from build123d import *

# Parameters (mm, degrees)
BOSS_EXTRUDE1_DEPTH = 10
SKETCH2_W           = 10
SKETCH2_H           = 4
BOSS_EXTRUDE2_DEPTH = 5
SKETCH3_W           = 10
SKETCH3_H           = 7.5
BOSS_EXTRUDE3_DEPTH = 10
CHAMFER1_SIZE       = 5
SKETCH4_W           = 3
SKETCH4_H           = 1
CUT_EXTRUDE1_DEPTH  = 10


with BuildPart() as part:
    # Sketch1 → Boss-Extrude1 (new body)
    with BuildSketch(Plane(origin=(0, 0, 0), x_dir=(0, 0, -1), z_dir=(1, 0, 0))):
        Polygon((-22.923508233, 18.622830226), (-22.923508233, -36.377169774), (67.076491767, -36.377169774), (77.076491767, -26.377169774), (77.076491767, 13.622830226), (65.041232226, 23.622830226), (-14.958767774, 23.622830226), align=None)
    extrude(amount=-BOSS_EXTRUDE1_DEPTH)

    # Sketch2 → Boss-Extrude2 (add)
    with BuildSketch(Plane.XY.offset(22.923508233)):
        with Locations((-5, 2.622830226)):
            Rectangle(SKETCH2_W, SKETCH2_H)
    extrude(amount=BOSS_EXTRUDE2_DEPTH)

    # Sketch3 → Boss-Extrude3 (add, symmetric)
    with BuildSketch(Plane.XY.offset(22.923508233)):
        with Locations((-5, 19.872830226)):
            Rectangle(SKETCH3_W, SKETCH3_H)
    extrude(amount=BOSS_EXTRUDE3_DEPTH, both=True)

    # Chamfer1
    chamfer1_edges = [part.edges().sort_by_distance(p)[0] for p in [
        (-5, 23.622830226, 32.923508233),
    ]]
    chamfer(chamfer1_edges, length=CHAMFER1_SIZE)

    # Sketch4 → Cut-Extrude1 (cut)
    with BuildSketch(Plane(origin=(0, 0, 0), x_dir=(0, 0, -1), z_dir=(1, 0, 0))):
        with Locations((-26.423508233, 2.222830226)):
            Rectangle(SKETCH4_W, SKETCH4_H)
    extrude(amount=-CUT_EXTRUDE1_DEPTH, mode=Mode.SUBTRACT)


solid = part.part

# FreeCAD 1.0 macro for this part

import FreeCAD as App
import Part
import Sketcher
Q = App.Units.Quantity


def edges_at(feature, points):
    """Names of the edges that pass closest to the given points."""
    edges = feature.Shape.Edges
    near = lambda p: min(range(len(edges)), key=lambda i: edges[i].distToShape(Part.Vertex(*p))[0])
    return sorted({f"Edge{near(p) + 1}" for p in points})

doc = App.newDocument("Part")
body = doc.addObject("PartDesign::Body", "Body")

# Sketch on YZ plane
sketch1 = body.newObject("Sketcher::SketchObject", "Sketch")
sketch1.AttachmentSupport = (doc.getObject("YZ_Plane"), [""])
sketch1.MapMode = "FlatFace"
sketch1.addGeometry(Part.LineSegment(App.Vector(19, 23, 0), App.Vector(-36, 23, 0)), False)
sketch1.addGeometry(Part.LineSegment(App.Vector(-36, 23, 0), App.Vector(-36, -67, 0)), False)
sketch1.addGeometry(Part.LineSegment(App.Vector(-36, -67, 0), App.Vector(-26, -77, 0)), False)
sketch1.addGeometry(Part.LineSegment(App.Vector(-26, -77, 0), App.Vector(14, -77, 0)), False)
sketch1.addGeometry(Part.LineSegment(App.Vector(14, -77, 0), App.Vector(24, -65, 0)), False)
sketch1.addGeometry(Part.LineSegment(App.Vector(24, -65, 0), App.Vector(24, 15, 0)), False)
sketch1.addGeometry(Part.LineSegment(App.Vector(24, 15, 0), App.Vector(19, 23, 0)), False)
sketch1.addConstraint(Sketcher.Constraint("Coincident", 0, 2, 1, 1))
sketch1.addConstraint(Sketcher.Constraint("Coincident", 1, 2, 2, 1))
sketch1.addConstraint(Sketcher.Constraint("Coincident", 2, 2, 3, 1))
sketch1.addConstraint(Sketcher.Constraint("Coincident", 3, 2, 4, 1))
sketch1.addConstraint(Sketcher.Constraint("Coincident", 4, 2, 5, 1))
sketch1.addConstraint(Sketcher.Constraint("Coincident", 5, 2, 6, 1))
sketch1.addConstraint(Sketcher.Constraint("Coincident", 6, 2, 0, 1))
sketch1.addConstraint(Sketcher.Constraint("Horizontal", 0))
sketch1.addConstraint(Sketcher.Constraint("Vertical", 1))
sketch1.addConstraint(Sketcher.Constraint("Horizontal", 3))
sketch1.addConstraint(Sketcher.Constraint("Vertical", 5))
sketch1.addConstraint(Sketcher.Constraint("DistanceX", 0, 2, 0, 1, Q("55 mm")))
sketch1.addConstraint(Sketcher.Constraint("DistanceX", 3, 1, 3, 2, Q("40 mm")))
sketch1.addConstraint(Sketcher.Constraint("DistanceY", 1, 2, 1, 1, Q("90 mm")))
sketch1.addConstraint(Sketcher.Constraint("DistanceY", 5, 1, 5, 2, Q("80 mm")))
sketch1.addConstraint(Sketcher.Constraint("Angle", 2, Q("-45 deg")))
sketch1.addConstraint(Sketcher.Constraint("DistanceX", 1, 2, 2, 2, Q("10 mm")))
sketch1.addConstraint(Sketcher.Constraint("DistanceX", 3, 2, 4, 2, Q("10 mm")))
sketch1.addConstraint(Sketcher.Constraint("Distance", 6, Q("9.4041 mm")))
sketch1.addConstraint(Sketcher.Constraint("DistanceX", 0, 2, -1, 1, Q("36.37717 mm")))
sketch1.addConstraint(Sketcher.Constraint("DistanceY", -1, 1, 0, 2, Q("22.923508 mm")))
pad1 = body.newObject("PartDesign::Pad", "Pad")
pad1.Profile = sketch1
pad1.Length = 10
pad1.Reversed = True

# Sketch on XY plane
sketch2 = body.newObject("Sketcher::SketchObject", "Sketch001")
sketch2.AttachmentSupport = (doc.getObject("XY_Plane"), [""])
sketch2.MapMode = "FlatFace"
sketch2.AttachmentOffset = App.Placement(App.Vector(0, 0, 22.923508), App.Rotation())
sketch2.addGeometry(Part.LineSegment(App.Vector(-10, 4.6, 0), App.Vector(-10, 0.6, 0)), False)
sketch2.addGeometry(Part.LineSegment(App.Vector(-10, 0.6, 0), App.Vector(0, 0.6, 0)), False)
sketch2.addGeometry(Part.LineSegment(App.Vector(0, 0.6, 0), App.Vector(0, 4.6, 0)), False)
sketch2.addGeometry(Part.LineSegment(App.Vector(0, 4.6, 0), App.Vector(-10, 4.6, 0)), False)
sketch2.addConstraint(Sketcher.Constraint("Coincident", 0, 2, 1, 1))
sketch2.addConstraint(Sketcher.Constraint("Coincident", 1, 2, 2, 1))
sketch2.addConstraint(Sketcher.Constraint("Coincident", 2, 2, 3, 1))
sketch2.addConstraint(Sketcher.Constraint("Coincident", 3, 2, 0, 1))
sketch2.addConstraint(Sketcher.Constraint("Vertical", 0))
sketch2.addConstraint(Sketcher.Constraint("Horizontal", 1))
sketch2.addConstraint(Sketcher.Constraint("Vertical", 2))
sketch2.addConstraint(Sketcher.Constraint("Horizontal", 3))
sketch2.addConstraint(Sketcher.Constraint("PointOnObject", 1, 2, -2))
sketch2.addConstraint(Sketcher.Constraint("DistanceX", 1, 1, 1, 2, Q("10 mm")))
sketch2.addConstraint(Sketcher.Constraint("DistanceY", 0, 2, 0, 1, Q("4 mm")))
sketch2.addConstraint(Sketcher.Constraint("DistanceY", -1, 1, 0, 2, Q("0.62283 mm")))
pad2 = body.newObject("PartDesign::Pad", "Pad001")
pad2.Profile = sketch2
pad2.Length = 5

# Sketch on XY plane
sketch3 = body.newObject("Sketcher::SketchObject", "Sketch002")
sketch3.AttachmentSupport = (doc.getObject("XY_Plane"), [""])
sketch3.MapMode = "FlatFace"
sketch3.AttachmentOffset = App.Placement(App.Vector(0, 0, 22.923508), App.Rotation())
sketch3.addGeometry(Part.LineSegment(App.Vector(-10, 24, 0), App.Vector(-10, 16, 0)), False)
sketch3.addGeometry(Part.LineSegment(App.Vector(-10, 16, 0), App.Vector(0, 16, 0)), False)
sketch3.addGeometry(Part.LineSegment(App.Vector(0, 16, 0), App.Vector(0, 24, 0)), False)
sketch3.addGeometry(Part.LineSegment(App.Vector(0, 24, 0), App.Vector(-10, 24, 0)), False)
sketch3.addConstraint(Sketcher.Constraint("Coincident", 0, 2, 1, 1))
sketch3.addConstraint(Sketcher.Constraint("Coincident", 1, 2, 2, 1))
sketch3.addConstraint(Sketcher.Constraint("Coincident", 2, 2, 3, 1))
sketch3.addConstraint(Sketcher.Constraint("Coincident", 3, 2, 0, 1))
sketch3.addConstraint(Sketcher.Constraint("Vertical", 0))
sketch3.addConstraint(Sketcher.Constraint("Horizontal", 1))
sketch3.addConstraint(Sketcher.Constraint("Vertical", 2))
sketch3.addConstraint(Sketcher.Constraint("Horizontal", 3))
sketch3.addConstraint(Sketcher.Constraint("PointOnObject", 1, 2, -2))
sketch3.addConstraint(Sketcher.Constraint("DistanceX", 1, 1, 1, 2, Q("10 mm")))
sketch3.addConstraint(Sketcher.Constraint("DistanceY", 0, 2, 0, 1, Q("7.5 mm")))
sketch3.addConstraint(Sketcher.Constraint("DistanceY", -1, 1, 0, 2, Q("16.12283 mm")))
pad3 = body.newObject("PartDesign::Pad", "Pad002")
pad3.Profile = sketch3
pad3.Length = 20
pad3.Midplane = True
doc.recompute()

chamfer = body.newObject("PartDesign::Chamfer", "Chamfer")
chamfer.Base = (pad3, edges_at(pad3, [(-5, 23.623, 32.924)]))
chamfer.Size = 5

# Sketch on YZ plane
sketch4 = body.newObject("Sketcher::SketchObject", "Sketch003")
sketch4.AttachmentSupport = (doc.getObject("YZ_Plane"), [""])
sketch4.MapMode = "FlatFace"
sketch4.addGeometry(Part.LineSegment(App.Vector(2.7, 27.9, 0), App.Vector(1.7, 27.9, 0)), False)
sketch4.addGeometry(Part.LineSegment(App.Vector(1.7, 27.9, 0), App.Vector(1.7, 24.9, 0)), False)
sketch4.addGeometry(Part.LineSegment(App.Vector(1.7, 24.9, 0), App.Vector(2.7, 24.9, 0)), False)
sketch4.addGeometry(Part.LineSegment(App.Vector(2.7, 24.9, 0), App.Vector(2.7, 27.9, 0)), False)
sketch4.addConstraint(Sketcher.Constraint("Coincident", 0, 2, 1, 1))
sketch4.addConstraint(Sketcher.Constraint("Coincident", 1, 2, 2, 1))
sketch4.addConstraint(Sketcher.Constraint("Coincident", 2, 2, 3, 1))
sketch4.addConstraint(Sketcher.Constraint("Coincident", 3, 2, 0, 1))
sketch4.addConstraint(Sketcher.Constraint("Horizontal", 0))
sketch4.addConstraint(Sketcher.Constraint("Vertical", 1))
sketch4.addConstraint(Sketcher.Constraint("Horizontal", 2))
sketch4.addConstraint(Sketcher.Constraint("Vertical", 3))
sketch4.addConstraint(Sketcher.Constraint("DistanceX", 0, 2, 0, 1, Q("1 mm")))
sketch4.addConstraint(Sketcher.Constraint("DistanceY", 1, 2, 1, 1, Q("3 mm")))
sketch4.addConstraint(Sketcher.Constraint("DistanceX", -1, 1, 0, 2, Q("1.72283 mm")))
sketch4.addConstraint(Sketcher.Constraint("DistanceY", -1, 1, 0, 2, Q("27.923508 mm")))
pocket1 = body.newObject("PartDesign::Pocket", "Pocket")
pocket1.Profile = sketch4
pocket1.Length = 10

doc.recompute()
